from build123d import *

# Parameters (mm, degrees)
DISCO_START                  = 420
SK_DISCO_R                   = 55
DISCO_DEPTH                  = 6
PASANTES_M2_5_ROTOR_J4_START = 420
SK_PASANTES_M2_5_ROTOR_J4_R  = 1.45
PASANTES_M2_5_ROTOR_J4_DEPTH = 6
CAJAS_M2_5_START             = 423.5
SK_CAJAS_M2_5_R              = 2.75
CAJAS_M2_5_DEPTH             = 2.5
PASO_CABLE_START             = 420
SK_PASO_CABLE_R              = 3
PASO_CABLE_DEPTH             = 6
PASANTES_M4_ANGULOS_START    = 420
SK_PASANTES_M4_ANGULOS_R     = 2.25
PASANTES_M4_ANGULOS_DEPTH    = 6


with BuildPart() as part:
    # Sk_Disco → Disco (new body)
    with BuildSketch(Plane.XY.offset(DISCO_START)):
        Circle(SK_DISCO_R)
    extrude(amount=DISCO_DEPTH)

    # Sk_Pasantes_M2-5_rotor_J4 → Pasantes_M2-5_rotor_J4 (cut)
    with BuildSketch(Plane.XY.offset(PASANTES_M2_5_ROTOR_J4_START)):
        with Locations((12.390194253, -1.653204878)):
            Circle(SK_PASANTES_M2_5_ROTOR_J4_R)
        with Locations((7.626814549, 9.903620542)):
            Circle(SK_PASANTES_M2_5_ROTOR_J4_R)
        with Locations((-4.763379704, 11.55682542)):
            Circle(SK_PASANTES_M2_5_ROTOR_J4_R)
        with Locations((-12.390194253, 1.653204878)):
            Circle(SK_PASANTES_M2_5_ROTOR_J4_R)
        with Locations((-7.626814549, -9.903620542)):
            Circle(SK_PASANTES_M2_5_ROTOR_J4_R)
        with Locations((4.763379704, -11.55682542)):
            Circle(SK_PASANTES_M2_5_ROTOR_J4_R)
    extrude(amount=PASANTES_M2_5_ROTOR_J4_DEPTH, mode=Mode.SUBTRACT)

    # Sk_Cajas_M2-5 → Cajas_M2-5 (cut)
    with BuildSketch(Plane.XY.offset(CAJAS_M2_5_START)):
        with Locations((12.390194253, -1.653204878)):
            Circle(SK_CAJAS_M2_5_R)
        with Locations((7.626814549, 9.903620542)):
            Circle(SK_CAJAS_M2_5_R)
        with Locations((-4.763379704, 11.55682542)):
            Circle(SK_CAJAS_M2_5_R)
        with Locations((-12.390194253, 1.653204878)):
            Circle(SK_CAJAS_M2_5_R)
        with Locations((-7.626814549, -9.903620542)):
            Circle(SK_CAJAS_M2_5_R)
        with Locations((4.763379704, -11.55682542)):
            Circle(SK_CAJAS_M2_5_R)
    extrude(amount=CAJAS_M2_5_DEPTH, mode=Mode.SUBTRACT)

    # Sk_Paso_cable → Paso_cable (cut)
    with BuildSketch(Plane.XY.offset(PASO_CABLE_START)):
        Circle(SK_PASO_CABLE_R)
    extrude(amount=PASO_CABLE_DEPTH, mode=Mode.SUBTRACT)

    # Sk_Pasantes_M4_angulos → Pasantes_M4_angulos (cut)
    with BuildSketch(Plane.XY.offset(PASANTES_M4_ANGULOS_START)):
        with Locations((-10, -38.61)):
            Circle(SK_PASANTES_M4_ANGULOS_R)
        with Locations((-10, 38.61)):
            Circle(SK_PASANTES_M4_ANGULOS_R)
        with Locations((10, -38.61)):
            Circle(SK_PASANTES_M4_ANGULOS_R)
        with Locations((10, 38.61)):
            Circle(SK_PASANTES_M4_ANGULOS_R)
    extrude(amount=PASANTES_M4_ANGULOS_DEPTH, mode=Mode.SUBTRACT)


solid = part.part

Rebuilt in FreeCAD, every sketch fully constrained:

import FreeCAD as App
import Part
import Sketcher
from FreeCAD import Vector

doc = App.newDocument("Part")
body = doc.addObject("PartDesign::Body", "Body")

# Sketch on XY plane
sketch1 = body.newObject("Sketcher::SketchObject", "Sketch")
sketch1.AttachmentSupport = (doc.getObject("XY_Plane"), [""])
sketch1.MapMode = "FlatFace"
sketch1.AttachmentOffset = App.Placement(Vector(0, 0, 420), App.Rotation())
sketch1.addGeometry(Part.Circle(Vector(0, 0, 0), Vector(0, 0, 1), 55), False)
sketch1.addConstraint([
    Sketcher.Constraint("Coincident", 0, 3, -1, 1),
    Sketcher.Constraint("Diameter", 0, 110.0),
])
pad1 = body.newObject("PartDesign::Pad", "Pad")
pad1.Profile = sketch1
pad1.Length = 6

# Sketch on XY plane
sketch2 = body.newObject("Sketcher::SketchObject", "Sketch001")
sketch2.AttachmentSupport = (doc.getObject("XY_Plane"), [""])
sketch2.MapMode = "FlatFace"
sketch2.AttachmentOffset = App.Placement(Vector(0, 0, 420), App.Rotation())
sketch2.addGeometry([
    Part.Circle(Vector(12.4, -1.7, 0), Vector(0, 0, 1), 1.4),  # 0
    Part.Circle(Vector(7.6, 9.9, 0), Vector(0, 0, 1), 1.4),  # 1
    Part.Circle(Vector(-4.8, 11.6, 0), Vector(0, 0, 1), 1.4),  # 2
    Part.Circle(Vector(-12.4, 1.7, 0), Vector(0, 0, 1), 1.4),  # 3
    Part.Circle(Vector(-7.6, -9.9, 0), Vector(0, 0, 1), 1.4),  # 4
    Part.Circle(Vector(4.8, -11.6, 0), Vector(0, 0, 1), 1.4),  # 5
], False)
sketch2.addConstraint([
    Sketcher.Constraint("Equal", 0, 1),
    Sketcher.Constraint("Equal", 1, 2),
    Sketcher.Constraint("Equal", 2, 3),
    Sketcher.Constraint("Equal", 3, 4),
    Sketcher.Constraint("Equal", 4, 5),
    Sketcher.Constraint("Symmetric", 0, 3, 3, 3, -1, 1),
    Sketcher.Constraint("Symmetric", 1, 3, 4, 3, -1, 1),
    Sketcher.Constraint("Symmetric", 2, 3, 5, 3, -1, 1),
    Sketcher.Constraint("Diameter", 0, 2.9),
    Sketcher.Constraint("DistanceY", -1, 1, 1, 3, 9.903621),
    Sketcher.Constraint("DistanceX", 2, 3, -1, 1, 4.76338),
    Sketcher.Constraint("DistanceX", 1, 3, 0, 3, 4.76338),
    Sketcher.Constraint("DistanceY", 0, 3, 2, 3, 13.21003),
    Sketcher.Constraint("DistanceY", 3, 3, 2, 3, 9.903621),
    Sketcher.Constraint("DistanceX", 3, 3, 1, 3, 20.017009),
])
pocket1 = body.newObject("PartDesign::Pocket", "Pocket")
pocket1.Profile = sketch2
pocket1.Length = 6
pocket1.Reversed = True

# Sketch on XY plane
sketch3 = body.newObject("Sketcher::SketchObject", "Sketch002")
sketch3.AttachmentSupport = (doc.getObject("XY_Plane"), [""])
sketch3.MapMode = "FlatFace"
sketch3.AttachmentOffset = App.Placement(Vector(0, 0, 423.5), App.Rotation())
sketch3.addGeometry([
    Part.Circle(Vector(12.4, -1.7, 0), Vector(0, 0, 1), 2.8),  # 0
    Part.Circle(Vector(7.6, 9.9, 0), Vector(0, 0, 1), 2.8),  # 1
    Part.Circle(Vector(-4.8, 11.6, 0), Vector(0, 0, 1), 2.8),  # 2
    Part.Circle(Vector(-12.4, 1.7, 0), Vector(0, 0, 1), 2.8),  # 3
    Part.Circle(Vector(-7.6, -9.9, 0), Vector(0, 0, 1), 2.8),  # 4
    Part.Circle(Vector(4.8, -11.6, 0), Vector(0, 0, 1), 2.8),  # 5
], False)
sketch3.addConstraint([
    Sketcher.Constraint("Equal", 0, 1),
    Sketcher.Constraint("Equal", 1, 2),
    Sketcher.Constraint("Equal", 2, 3),
    Sketcher.Constraint("Equal", 3, 4),
    Sketcher.Constraint("Equal", 4, 5),
    Sketcher.Constraint("Symmetric", 0, 3, 3, 3, -1, 1),
    Sketcher.Constraint("Symmetric", 1, 3, 4, 3, -1, 1),
    Sketcher.Constraint("Symmetric", 2, 3, 5, 3, -1, 1),
    Sketcher.Constraint("Diameter", 0, 5.5),
    Sketcher.Constraint("DistanceY", -1, 1, 1, 3, 9.903621),
    Sketcher.Constraint("DistanceX", 2, 3, -1, 1, 4.76338),
    Sketcher.Constraint("DistanceX", 1, 3, 0, 3, 4.76338),
    Sketcher.Constraint("DistanceY", 0, 3, 2, 3, 13.21003),
    Sketcher.Constraint("DistanceY", 3, 3, 2, 3, 9.903621),
    Sketcher.Constraint("DistanceX", 3, 3, 1, 3, 20.017009),
])
pocket2 = body.newObject("PartDesign::Pocket", "Pocket001")
pocket2.Profile = sketch3
pocket2.Length = 2.5
pocket2.Reversed = True

# Sketch on XY plane
sketch4 = body.newObject("Sketcher::SketchObject", "Sketch003")
sketch4.AttachmentSupport = (doc.getObject("XY_Plane"), [""])
sketch4.MapMode = "FlatFace"
sketch4.AttachmentOffset = App.Placement(Vector(0, 0, 420), App.Rotation())
sketch4.addGeometry(Part.Circle(Vector(0, 0, 0), Vector(0, 0, 1), 3), False)
sketch4.addConstraint([
    Sketcher.Constraint("Coincident", 0, 3, -1, 1),
    Sketcher.Constraint("Diameter", 0, 6.0),
])
pocket3 = body.newObject("PartDesign::Pocket", "Pocket002")
pocket3.Profile = sketch4
pocket3.Length = 6
pocket3.Reversed = True

# Sketch on XY plane
sketch5 = body.newObject("Sketcher::SketchObject", "Sketch004")
sketch5.AttachmentSupport = (doc.getObject("XY_Plane"), [""])
sketch5.MapMode = "FlatFace"
sketch5.AttachmentOffset = App.Placement(Vector(0, 0, 420), App.Rotation())
sketch5.addGeometry([
    Part.Circle(Vector(-10, -38.6, 0), Vector(0, 0, 1), 2.2),
    Part.Circle(Vector(-10, 38.6, 0), Vector(0, 0, 1), 2.2),
    Part.Circle(Vector(10, -38.6, 0), Vector(0, 0, 1), 2.2),
    Part.Circle(Vector(10, 38.6, 0), Vector(0, 0, 1), 2.2),
], False)
sketch5.addConstraint([
    Sketcher.Constraint("Equal", 0, 1),
    Sketcher.Constraint("Equal", 1, 2),
    Sketcher.Constraint("Equal", 2, 3),
    Sketcher.Constraint("Symmetric", 1, 3, 2, 3, -1, 1),
    Sketcher.Constraint("Symmetric", 0, 3, 3, 3, -1, 1),
    Sketcher.Constraint("Symmetric", 0, 3, 2, 3, -2),
    Sketcher.Constraint("Diameter", 0, 4.5),
    Sketcher.Constraint("DistanceX", 0, 3, -1, 1, 10.0),
    Sketcher.Constraint("DistanceY", 0, 3, -1, 1, 38.61),
])
pocket4 = body.newObject("PartDesign::Pocket", "Pocket003")
pocket4.Profile = sketch5
pocket4.Length = 6
pocket4.Reversed = True

doc.recompute()
